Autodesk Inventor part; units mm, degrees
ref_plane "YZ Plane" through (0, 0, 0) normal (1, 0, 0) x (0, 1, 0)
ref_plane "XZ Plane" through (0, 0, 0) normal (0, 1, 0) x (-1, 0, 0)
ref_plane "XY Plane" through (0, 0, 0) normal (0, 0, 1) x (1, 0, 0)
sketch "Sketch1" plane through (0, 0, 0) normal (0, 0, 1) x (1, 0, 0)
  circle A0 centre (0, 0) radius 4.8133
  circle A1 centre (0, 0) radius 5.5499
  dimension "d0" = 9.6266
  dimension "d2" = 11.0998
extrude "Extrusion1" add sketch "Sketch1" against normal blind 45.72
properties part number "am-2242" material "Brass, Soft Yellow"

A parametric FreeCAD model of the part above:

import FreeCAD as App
import Part
import Sketcher
Q = App.Units.Quantity

doc = App.newDocument("Part")
params = doc.addObject("Spreadsheet::Sheet", "Params")
for row, (alias, value) in enumerate([
    ("sketch1_diameter", "0.437 in"),
    ("sketch1_diameter2", "0.379 in"),
    ("pad1_length", "1.8 in"),
], start=1):
    params.set(f"A{row}", alias)
    params.set(f"B{row}", "=" + value)
    params.setAlias(f"B{row}", alias)

body = doc.addObject("PartDesign::Body", "Body")

sketch1 = body.newObject("Sketcher::SketchObject", "Sketch")
sketch1.AttachmentSupport = (doc.getObject("XY_Plane"), [""])
sketch1.MapMode = "FlatFace"
sketch1.addGeometry(Part.Circle(App.Vector(0, 0, 0), App.Vector(0, 0, 1), 5.5), False)
sketch1.addGeometry(Part.Circle(App.Vector(0, 0, 0), App.Vector(0, 0, 1), 4.8), False)
sketch1.addConstraint(Sketcher.Constraint("Coincident", 0, 3, -1, 1))
sketch1.addConstraint(Sketcher.Constraint("Coincident", 1, 3, -1, 1))
sketch1.addConstraint(Sketcher.Constraint("Diameter", 0, Q("0.437 in")))
sketch1.addConstraint(Sketcher.Constraint("Diameter", 1, Q("0.379 in")))
sketch1.setExpression("Constraints[2]", "Params.sketch1_diameter")
sketch1.setExpression("Constraints[3]", "Params.sketch1_diameter2")
pad1 = body.newObject("PartDesign::Pad", "Pad")
pad1.Profile = sketch1
pad1.setExpression("Length", "Params.pad1_length")
pad1.Reversed = True

doc.recompute()
